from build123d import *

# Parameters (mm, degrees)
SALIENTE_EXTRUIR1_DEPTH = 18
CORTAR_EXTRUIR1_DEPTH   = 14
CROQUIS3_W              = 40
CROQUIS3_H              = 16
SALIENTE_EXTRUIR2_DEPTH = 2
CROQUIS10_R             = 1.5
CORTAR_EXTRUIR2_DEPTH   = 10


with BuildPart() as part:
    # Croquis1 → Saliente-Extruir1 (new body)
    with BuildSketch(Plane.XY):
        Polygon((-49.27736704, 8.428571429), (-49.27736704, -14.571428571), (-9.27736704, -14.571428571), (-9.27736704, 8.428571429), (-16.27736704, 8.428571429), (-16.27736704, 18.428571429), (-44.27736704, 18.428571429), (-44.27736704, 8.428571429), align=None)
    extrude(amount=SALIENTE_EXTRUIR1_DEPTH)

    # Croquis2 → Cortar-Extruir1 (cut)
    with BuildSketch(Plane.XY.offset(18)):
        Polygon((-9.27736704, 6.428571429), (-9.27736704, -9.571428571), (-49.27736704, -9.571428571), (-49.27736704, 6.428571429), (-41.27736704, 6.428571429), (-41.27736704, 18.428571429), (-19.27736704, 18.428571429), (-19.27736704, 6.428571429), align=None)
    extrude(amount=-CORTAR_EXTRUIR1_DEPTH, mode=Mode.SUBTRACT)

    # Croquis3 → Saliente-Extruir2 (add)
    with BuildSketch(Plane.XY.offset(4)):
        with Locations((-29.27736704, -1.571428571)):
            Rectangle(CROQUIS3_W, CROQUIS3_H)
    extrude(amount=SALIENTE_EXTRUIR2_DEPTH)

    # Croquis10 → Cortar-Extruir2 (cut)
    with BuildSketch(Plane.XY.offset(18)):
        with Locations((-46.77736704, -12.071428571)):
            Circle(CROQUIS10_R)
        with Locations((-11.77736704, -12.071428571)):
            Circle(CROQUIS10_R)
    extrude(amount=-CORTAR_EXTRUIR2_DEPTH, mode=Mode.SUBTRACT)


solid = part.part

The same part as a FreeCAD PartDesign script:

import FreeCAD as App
import Part
import Sketcher
Q = App.Units.Quantity


def add_polygon(sketch, points):
    """Adds a closed chain of lines whose ends are joined by coincident constraints."""
    first, n = sketch.GeometryCount, len(points)
    for a, b in zip(points, points[1:] + points[:1]):
        sketch.addGeometry(Part.LineSegment(App.Vector(*a, 0), App.Vector(*b, 0)), False)
    for i in range(n):
        sketch.addConstraint(Sketcher.Constraint("Coincident", first + i, 2, first + (i + 1) % n, 1))

doc = App.newDocument("Part")
params = doc.addObject("Spreadsheet::Sheet", "Params")
for row, (alias, value) in enumerate([
    ("sketch1_width", "40 mm"),
    ("sketch1_width2", "7 mm"),
    ("sketch1_width3", "28 mm"),
    ("sketch1_height", "23 mm"),
    ("sketch1_height2", "10 mm"),
    ("pad1_length", "18 mm"),
    ("sketch2_width", "10 mm"),
    ("sketch2_width2", "22 mm"),
    ("sketch2_width3", "8 mm"),
    ("sketch2_height", "16 mm"),
    ("sketch2_height2", "12 mm"),
    ("pocket1_length", "14 mm"),
    ("sketch3_width", "40 mm"),
    ("sketch3_height", "16 mm"),
    ("pad2_length", "2 mm"),
    ("sketch4_diameter", "3 mm"),
    ("pocket2_length", "10 mm"),
], start=1):
    params.set(f"A{row}", alias)
    params.set(f"B{row}", "=" + value)
    params.setAlias(f"B{row}", alias)

body = doc.addObject("PartDesign::Body", "Body")

sketch1 = doc.addObject("Sketcher::SketchObject", "Sketch")
body.addObject(sketch1)
sketch1.AttachmentSupport = (doc.XY_Plane, [""])
sketch1.MapMode = "FlatFace"
add_polygon(sketch1, [(-49.277367, 8.428571), (-49.277367, -14.571429), (-9.277367, -14.571429), (-9.277367, 8.428571), (-16.277367, 8.428571), (-16.277367, 18.428571), (-44.277367, 18.428571), (-44.277367, 8.428571)])
sketch1.addConstraint([
    Sketcher.Constraint("Vertical", 0),
    Sketcher.Constraint("Horizontal", 1),
    Sketcher.Constraint("Vertical", 2),
    Sketcher.Constraint("Horizontal", 3),
    Sketcher.Constraint("Vertical", 4),
    Sketcher.Constraint("Horizontal", 5),
    Sketcher.Constraint("Vertical", 6),
    Sketcher.Constraint("Horizontal", 7),
    Sketcher.Constraint("Horizontal", 3, 2, 6, 2),
    Sketcher.Constraint("DistanceX", 1, 1, 1, 2, Q("40 mm")),
    Sketcher.Constraint("DistanceX", 3, 2, 3, 1, Q("7 mm")),
    Sketcher.Constraint("DistanceX", 5, 2, 5, 1, Q("28 mm")),
    Sketcher.Constraint("DistanceY", 0, 2, 0, 1, Q("23 mm")),
    Sketcher.Constraint("DistanceY", 4, 1, 4, 2, Q("10 mm")),
    Sketcher.Constraint("DistanceY", 0, 2, -1, 1, Q("14.571429 mm")),
    Sketcher.Constraint("DistanceX", 0, 2, -1, 1, Q("49.277367 mm")),
])
sketch1.setExpression("Constraints[17]", "Params.sketch1_width")
sketch1.setExpression("Constraints[18]", "Params.sketch1_width2")
sketch1.setExpression("Constraints[19]", "Params.sketch1_width3")
sketch1.setExpression("Constraints[20]", "Params.sketch1_height")
sketch1.setExpression("Constraints[21]", "Params.sketch1_height2")
pad1 = doc.addObject("PartDesign::Pad", "Pad")
body.addObject(pad1)
pad1.Profile = sketch1
pad1.setExpression("Length", "Params.pad1_length")

sketch2 = doc.addObject("Sketcher::SketchObject", "Sketch001")
body.addObject(sketch2)
sketch2.AttachmentSupport = (doc.XY_Plane, [""])
sketch2.MapMode = "FlatFace"
sketch2.AttachmentOffset = App.Placement(App.Vector(0, 0, 18), App.Rotation())
add_polygon(sketch2, [(-9.277367, -9.571429), (-9.277367, 6.428571), (-19.277367, 6.428571), (-19.277367, 18.428571), (-41.277367, 18.428571), (-41.277367, 6.428571), (-49.277367, 6.428571), (-49.277367, -9.571429)])
sketch2.addConstraint([
    Sketcher.Constraint("Vertical", 0),
    Sketcher.Constraint("Horizontal", 1),
    Sketcher.Constraint("Vertical", 2),
    Sketcher.Constraint("Horizontal", 3),
    Sketcher.Constraint("Vertical", 4),
    Sketcher.Constraint("Horizontal", 5),
    Sketcher.Constraint("Vertical", 6),
    Sketcher.Constraint("Horizontal", 7),
    Sketcher.Constraint("Horizontal", 1, 2, 4, 2),
    Sketcher.Constraint("DistanceX", 1, 2, 1, 1, Q("10 mm")),
    Sketcher.Constraint("DistanceX", 3, 2, 3, 1, Q("22 mm")),
    Sketcher.Constraint("DistanceX", 5, 2, 5, 1, Q("8 mm")),
    Sketcher.Constraint("DistanceY", 0, 1, 0, 2, Q("16 mm")),
    Sketcher.Constraint("DistanceY", 2, 1, 2, 2, Q("12 mm")),
    Sketcher.Constraint("DistanceY", -1, 1, 0, 2, Q("6.428571 mm")),
    Sketcher.Constraint("DistanceX", 0, 2, -1, 1, Q("9.277367 mm")),
])
sketch2.setExpression("Constraints[17]", "Params.sketch2_width")
sketch2.setExpression("Constraints[18]", "Params.sketch2_width2")
sketch2.setExpression("Constraints[19]", "Params.sketch2_width3")
sketch2.setExpression("Constraints[20]", "Params.sketch2_height")
sketch2.setExpression("Constraints[21]", "Params.sketch2_height2")
pocket1 = doc.addObject("PartDesign::Pocket", "Pocket")
body.addObject(pocket1)
pocket1.Profile = sketch2
pocket1.setExpression("Length", "Params.pocket1_length")

sketch3 = doc.addObject("Sketcher::SketchObject", "Sketch002")
body.addObject(sketch3)
sketch3.AttachmentSupport = (doc.XY_Plane, [""])
sketch3.MapMode = "FlatFace"
sketch3.AttachmentOffset = App.Placement(App.Vector(0, 0, 4), App.Rotation())
add_polygon(sketch3, [(-49.277367, 6.428571), (-49.277367, -9.571429), (-9.277367, -9.571429), (-9.277367, 6.428571)])
sketch3.addConstraint([
    Sketcher.Constraint("Vertical", 0),
    Sketcher.Constraint("Horizontal", 1),
    Sketcher.Constraint("Vertical", 2),
    Sketcher.Constraint("Horizontal", 3),
    Sketcher.Constraint("DistanceX", 1, 1, 1, 2, Q("40 mm")),
    Sketcher.Constraint("DistanceY", 0, 2, 0, 1, Q("16 mm")),
    Sketcher.Constraint("DistanceY", 0, 2, -1, 1, Q("9.571429 mm")),
    Sketcher.Constraint("DistanceX", 0, 2, -1, 1, Q("49.277367 mm")),
])
sketch3.setExpression("Constraints[8]", "Params.sketch3_width")
sketch3.setExpression("Constraints[9]", "Params.sketch3_height")
pad2 = doc.addObject("PartDesign::Pad", "Pad001")
body.addObject(pad2)
pad2.Profile = sketch3
pad2.setExpression("Length", "Params.pad2_length")

sketch4 = doc.addObject("Sketcher::SketchObject", "Sketch003")
body.addObject(sketch4)
sketch4.AttachmentSupport = (doc.XY_Plane, [""])
sketch4.MapMode = "FlatFace"
sketch4.AttachmentOffset = App.Placement(App.Vector(0, 0, 18), App.Rotation())
sketch4.addGeometry([
    Part.Circle(App.Vector(-46.777367, -12.071429, 0), App.Vector(0, 0, 1), 1.5),
    Part.Circle(App.Vector(-11.777367, -12.071429, 0), App.Vector(0, 0, 1), 1.5),
], False)
sketch4.addConstraint([
    Sketcher.Constraint("Equal", 0, 1),
    Sketcher.Constraint("Horizontal", 0, 3, 1, 3),
    Sketcher.Constraint("Diameter", 0, Q("3 mm")),
    Sketcher.Constraint("DistanceX", 0, 3, 1, 3, Q("35 mm")),
    Sketcher.Constraint("DistanceY", 0, 3, -1, 1, Q("12.071429 mm")),
    Sketcher.Constraint("DistanceX", 0, 3, -1, 1, Q("46.777367 mm")),
])
sketch4.setExpression("Constraints[2]", "Params.sketch4_diameter")
pocket2 = doc.addObject("PartDesign::Pocket", "Pocket001")
body.addObject(pocket2)
pocket2.Profile = sketch4
pocket2.setExpression("Length", "Params.pocket2_length")

doc.recompute()
